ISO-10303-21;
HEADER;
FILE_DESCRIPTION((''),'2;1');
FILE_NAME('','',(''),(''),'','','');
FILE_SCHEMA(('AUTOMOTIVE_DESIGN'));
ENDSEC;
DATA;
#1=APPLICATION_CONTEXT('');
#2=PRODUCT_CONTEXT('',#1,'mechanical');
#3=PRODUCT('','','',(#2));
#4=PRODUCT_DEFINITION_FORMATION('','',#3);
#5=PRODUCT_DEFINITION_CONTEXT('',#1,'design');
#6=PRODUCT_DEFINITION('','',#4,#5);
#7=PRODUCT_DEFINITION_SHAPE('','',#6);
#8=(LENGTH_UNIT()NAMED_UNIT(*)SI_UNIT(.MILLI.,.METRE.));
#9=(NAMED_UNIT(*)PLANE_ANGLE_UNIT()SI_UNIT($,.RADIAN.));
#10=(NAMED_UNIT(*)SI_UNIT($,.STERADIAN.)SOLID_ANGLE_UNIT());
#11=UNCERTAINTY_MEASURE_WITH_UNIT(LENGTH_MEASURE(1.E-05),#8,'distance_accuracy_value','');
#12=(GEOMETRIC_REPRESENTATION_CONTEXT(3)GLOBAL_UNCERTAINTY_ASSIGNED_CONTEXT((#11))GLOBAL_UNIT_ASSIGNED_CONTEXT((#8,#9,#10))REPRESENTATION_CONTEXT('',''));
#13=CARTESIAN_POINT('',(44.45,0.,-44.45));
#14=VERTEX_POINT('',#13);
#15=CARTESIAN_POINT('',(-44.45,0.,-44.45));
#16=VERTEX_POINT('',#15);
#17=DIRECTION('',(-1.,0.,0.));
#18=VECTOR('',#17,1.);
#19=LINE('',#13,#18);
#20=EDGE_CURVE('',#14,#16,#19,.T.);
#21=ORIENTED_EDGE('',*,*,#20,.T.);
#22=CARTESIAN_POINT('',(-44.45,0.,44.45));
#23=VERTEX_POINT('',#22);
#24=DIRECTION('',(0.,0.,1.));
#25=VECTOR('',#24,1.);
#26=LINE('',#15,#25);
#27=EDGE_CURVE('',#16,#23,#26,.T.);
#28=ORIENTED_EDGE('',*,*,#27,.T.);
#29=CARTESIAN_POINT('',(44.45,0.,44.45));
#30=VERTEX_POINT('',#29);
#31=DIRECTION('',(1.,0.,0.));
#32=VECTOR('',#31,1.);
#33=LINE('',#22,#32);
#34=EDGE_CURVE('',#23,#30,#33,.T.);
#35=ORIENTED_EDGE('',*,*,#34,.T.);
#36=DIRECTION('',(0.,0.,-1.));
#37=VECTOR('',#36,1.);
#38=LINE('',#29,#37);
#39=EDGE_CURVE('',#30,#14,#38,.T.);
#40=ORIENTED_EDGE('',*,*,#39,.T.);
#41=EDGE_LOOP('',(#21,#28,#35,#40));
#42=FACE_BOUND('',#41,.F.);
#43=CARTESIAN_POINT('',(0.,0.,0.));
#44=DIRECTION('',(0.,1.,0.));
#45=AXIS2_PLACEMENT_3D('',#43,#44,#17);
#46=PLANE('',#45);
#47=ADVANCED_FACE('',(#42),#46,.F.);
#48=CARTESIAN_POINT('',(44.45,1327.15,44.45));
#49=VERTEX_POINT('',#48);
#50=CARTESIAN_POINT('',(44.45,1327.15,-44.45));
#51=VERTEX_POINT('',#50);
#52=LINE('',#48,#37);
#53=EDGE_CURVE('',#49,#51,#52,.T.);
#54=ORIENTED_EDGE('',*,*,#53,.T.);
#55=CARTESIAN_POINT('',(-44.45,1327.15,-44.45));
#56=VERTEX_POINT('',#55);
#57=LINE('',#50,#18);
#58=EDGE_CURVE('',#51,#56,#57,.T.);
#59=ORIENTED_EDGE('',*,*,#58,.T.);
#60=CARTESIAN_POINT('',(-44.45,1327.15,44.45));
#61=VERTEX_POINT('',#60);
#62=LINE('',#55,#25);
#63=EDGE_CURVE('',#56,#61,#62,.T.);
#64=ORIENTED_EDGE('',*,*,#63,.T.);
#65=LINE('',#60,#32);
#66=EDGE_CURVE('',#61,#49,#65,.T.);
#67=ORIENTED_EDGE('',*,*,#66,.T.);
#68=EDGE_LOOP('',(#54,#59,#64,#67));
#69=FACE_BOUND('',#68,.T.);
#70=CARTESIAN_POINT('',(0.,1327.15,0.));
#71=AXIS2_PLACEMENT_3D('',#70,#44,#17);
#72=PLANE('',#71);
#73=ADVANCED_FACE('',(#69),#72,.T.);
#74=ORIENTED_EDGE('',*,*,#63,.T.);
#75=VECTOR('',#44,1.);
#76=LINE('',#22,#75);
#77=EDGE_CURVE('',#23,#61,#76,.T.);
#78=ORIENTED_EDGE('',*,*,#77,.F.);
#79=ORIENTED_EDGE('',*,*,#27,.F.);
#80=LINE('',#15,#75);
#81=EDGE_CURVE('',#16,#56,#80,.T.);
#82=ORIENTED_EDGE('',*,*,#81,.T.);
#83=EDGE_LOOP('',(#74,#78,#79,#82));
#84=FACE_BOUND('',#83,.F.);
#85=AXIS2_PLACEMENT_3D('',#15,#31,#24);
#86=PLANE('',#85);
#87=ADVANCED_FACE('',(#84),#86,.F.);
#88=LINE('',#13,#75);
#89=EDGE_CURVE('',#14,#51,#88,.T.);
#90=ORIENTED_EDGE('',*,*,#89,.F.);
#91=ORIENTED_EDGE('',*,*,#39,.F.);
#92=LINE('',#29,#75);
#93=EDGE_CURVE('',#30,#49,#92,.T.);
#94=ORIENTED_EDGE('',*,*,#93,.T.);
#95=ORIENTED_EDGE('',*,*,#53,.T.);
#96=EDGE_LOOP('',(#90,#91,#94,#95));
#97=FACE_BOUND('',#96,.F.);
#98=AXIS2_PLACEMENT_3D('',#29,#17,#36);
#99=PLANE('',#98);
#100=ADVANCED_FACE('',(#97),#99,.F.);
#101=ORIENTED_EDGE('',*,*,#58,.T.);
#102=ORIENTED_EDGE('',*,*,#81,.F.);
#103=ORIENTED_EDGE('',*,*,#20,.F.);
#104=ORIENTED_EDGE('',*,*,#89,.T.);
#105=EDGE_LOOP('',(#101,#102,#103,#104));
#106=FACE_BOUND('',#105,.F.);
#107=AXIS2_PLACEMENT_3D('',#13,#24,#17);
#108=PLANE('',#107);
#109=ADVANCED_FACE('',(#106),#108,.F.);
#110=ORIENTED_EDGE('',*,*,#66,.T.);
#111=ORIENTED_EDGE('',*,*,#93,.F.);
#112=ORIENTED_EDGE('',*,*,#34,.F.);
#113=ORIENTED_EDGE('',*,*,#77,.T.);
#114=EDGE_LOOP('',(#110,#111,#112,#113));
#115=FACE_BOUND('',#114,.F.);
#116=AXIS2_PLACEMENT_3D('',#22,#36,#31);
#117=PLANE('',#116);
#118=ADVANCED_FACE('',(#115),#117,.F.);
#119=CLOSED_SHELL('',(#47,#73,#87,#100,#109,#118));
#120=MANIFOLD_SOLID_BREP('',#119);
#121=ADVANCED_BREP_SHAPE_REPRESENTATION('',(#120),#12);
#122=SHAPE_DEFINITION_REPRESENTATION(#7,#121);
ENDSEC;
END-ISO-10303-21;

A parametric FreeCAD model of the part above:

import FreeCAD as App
import Part
import Sketcher
from FreeCAD import Vector
Q = App.Units.Quantity

doc = App.newDocument("Part")
body = doc.addObject("PartDesign::Body", "Body")

# Sketch on XZ plane
sketch1 = doc.addObject("Sketcher::SketchObject", "Sketch")
body.addObject(sketch1)
sketch1.AttachmentSupport = (doc.XZ_Plane, [""])
sketch1.MapMode = "FlatFace"
sketch1.addGeometry([
    Part.LineSegment(Vector(-44.45, 44.45, 0), Vector(44.45, 44.45, 0)),
    Part.LineSegment(Vector(44.45, 44.45, 0), Vector(44.45, -44.45, 0)),
    Part.LineSegment(Vector(44.45, -44.45, 0), Vector(-44.45, -44.45, 0)),
    Part.LineSegment(Vector(-44.45, -44.45, 0), Vector(-44.45, 44.45, 0)),
], False)
sketch1.addConstraint([
    Sketcher.Constraint("Coincident", 0, 2, 1, 1),
    Sketcher.Constraint("Coincident", 1, 2, 2, 1),
    Sketcher.Constraint("Coincident", 2, 2, 3, 1),
    Sketcher.Constraint("Coincident", 3, 2, 0, 1),
    Sketcher.Constraint("Horizontal", 0),
    Sketcher.Constraint("Vertical", 1),
    Sketcher.Constraint("Horizontal", 2),
    Sketcher.Constraint("Vertical", 3),
    Sketcher.Constraint("Symmetric", 0, 2, 2, 2, -1, 1),
    Sketcher.Constraint("Equal", 2, 1),
    Sketcher.Constraint("DistanceX", 0, 1, 0, 2, Q("3.5 in")),
])
pad1 = doc.addObject("PartDesign::Pad", "Pad")
body.addObject(pad1)
pad1.Profile = sketch1
pad1.Length = Q("52.25 in")
pad1.Reversed = True

doc.recompute()
